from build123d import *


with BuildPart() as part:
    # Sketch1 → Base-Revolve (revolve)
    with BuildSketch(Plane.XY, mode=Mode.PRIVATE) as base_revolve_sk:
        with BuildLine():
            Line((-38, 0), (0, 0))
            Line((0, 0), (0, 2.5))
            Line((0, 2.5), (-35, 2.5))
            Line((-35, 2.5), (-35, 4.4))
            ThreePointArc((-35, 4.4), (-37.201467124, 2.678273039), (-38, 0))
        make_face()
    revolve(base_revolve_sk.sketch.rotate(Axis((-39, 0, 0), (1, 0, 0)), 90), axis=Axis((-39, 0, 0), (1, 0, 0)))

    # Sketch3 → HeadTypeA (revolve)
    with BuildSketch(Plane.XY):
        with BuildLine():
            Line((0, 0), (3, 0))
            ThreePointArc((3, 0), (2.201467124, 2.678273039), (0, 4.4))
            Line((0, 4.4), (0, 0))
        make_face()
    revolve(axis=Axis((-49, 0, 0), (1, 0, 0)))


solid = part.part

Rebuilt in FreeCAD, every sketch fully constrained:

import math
import FreeCAD as App
import Part
import Sketcher
Q = App.Units.Quantity

doc = App.newDocument("Part")
params = doc.addObject("Spreadsheet::Sheet", "Params")
for row, (alias, value) in enumerate([
    ("sketch1_radius", "4.6 mm"),
    ("sketch1_width", "38 mm"),
    ("sketch1_width2", "35 mm"),
    ("sketch1_height", "2.5 mm"),
    ("sketch1_height2", "1.9 mm"),
    ("revolution_angle", "360 deg"),
    ("sketch2_radius", "4.6 mm"),
    ("sketch2_width", "3 mm"),
    ("sketch2_height", "4.4 mm"),
    ("revolution2_angle", "360 deg"),
], start=1):
    params.set(f"A{row}", alias)
    params.set(f"B{row}", "=" + value)
    params.setAlias(f"B{row}", alias)

body = doc.addObject("PartDesign::Body", "Body")

# Sketch on XY plane
sketch1 = body.newObject("Sketcher::SketchObject", "Sketch")
sketch1.AttachmentSupport = (doc.getObject("XY_Plane"), [""])
sketch1.MapMode = "FlatFace"
sketch1.addGeometry(Part.LineSegment(App.Vector(-38, 0, 0), App.Vector(0, 0, 0)), False)
sketch1.addGeometry(Part.LineSegment(App.Vector(0, 0, 0), App.Vector(0, 2.5, 0)), False)
sketch1.addGeometry(Part.LineSegment(App.Vector(0, 2.5, 0), App.Vector(-35, 2.5, 0)), False)
sketch1.addGeometry(Part.LineSegment(App.Vector(-35, 2.5, 0), App.Vector(-35, 4.4, 0)), False)
sketch1.addGeometry(Part.ArcOfCircle(Part.Circle(App.Vector(-33.400821, 0.086924, 0), App.Vector(0, 0, 1), 4.6), math.radians(110.343495), math.radians(181.082751)), False)
sketch1.addConstraint(Sketcher.Constraint("Coincident", 0, 2, 1, 1))
sketch1.addConstraint(Sketcher.Constraint("Coincident", 1, 2, 2, 1))
sketch1.addConstraint(Sketcher.Constraint("Coincident", 2, 2, 3, 1))
sketch1.addConstraint(Sketcher.Constraint("Coincident", 3, 2, 4, 1))
sketch1.addConstraint(Sketcher.Constraint("Coincident", 4, 2, 0, 1))
sketch1.addConstraint(Sketcher.Constraint("Horizontal", 0))
sketch1.addConstraint(Sketcher.Constraint("Vertical", 1))
sketch1.addConstraint(Sketcher.Constraint("Horizontal", 2))
sketch1.addConstraint(Sketcher.Constraint("Vertical", 3))
sketch1.addConstraint(Sketcher.Constraint("Coincident", 0, 2, -1, 1))
sketch1.addConstraint(Sketcher.Constraint("Radius", 4, Q("4.6 mm")))
sketch1.addConstraint(Sketcher.Constraint("DistanceX", 0, 1, 0, 2, Q("38 mm")))
sketch1.addConstraint(Sketcher.Constraint("DistanceX", 2, 2, 2, 1, Q("35 mm")))
sketch1.addConstraint(Sketcher.Constraint("DistanceY", 1, 1, 1, 2, Q("2.5 mm")))
sketch1.addConstraint(Sketcher.Constraint("DistanceY", 3, 1, 3, 2, Q("1.9 mm")))
sketch1.setExpression("Constraints[10]", "Params.sketch1_radius")
sketch1.setExpression("Constraints[11]", "Params.sketch1_width")
sketch1.setExpression("Constraints[12]", "Params.sketch1_width2")
sketch1.setExpression("Constraints[13]", "Params.sketch1_height")
sketch1.setExpression("Constraints[14]", "Params.sketch1_height2")
revolution = body.newObject("PartDesign::Revolution", "Revolution")
revolution.Profile = sketch1
revolution.ReferenceAxis = (sketch1, ["H_Axis"])
revolution.setExpression("Angle", "Params.revolution_angle")

# Sketch on XY plane
sketch2 = body.newObject("Sketcher::SketchObject", "Sketch001")
sketch2.AttachmentSupport = (doc.getObject("XY_Plane"), [""])
sketch2.MapMode = "FlatFace"
sketch2.addGeometry(Part.LineSegment(App.Vector(0, 0, 0), App.Vector(3, 0, 0)), False)
sketch2.addGeometry(Part.ArcOfCircle(Part.Circle(App.Vector(-1.599179, 0.086924, 0), App.Vector(0, 0, 1), 4.6), math.radians(-1.082751), math.radians(69.656505)), False)
sketch2.addGeometry(Part.LineSegment(App.Vector(0, 4.4, 0), App.Vector(0, 0, 0)), False)
sketch2.addConstraint(Sketcher.Constraint("Coincident", 0, 2, 1, 1))
sketch2.addConstraint(Sketcher.Constraint("Coincident", 1, 2, 2, 1))
sketch2.addConstraint(Sketcher.Constraint("Coincident", 2, 2, 0, 1))
sketch2.addConstraint(Sketcher.Constraint("Horizontal", 0))
sketch2.addConstraint(Sketcher.Constraint("Vertical", 2))
sketch2.addConstraint(Sketcher.Constraint("Coincident", 2, 2, -1, 1))
sketch2.addConstraint(Sketcher.Constraint("Radius", 1, Q("4.6 mm")))
sketch2.addConstraint(Sketcher.Constraint("DistanceX", 0, 1, 0, 2, Q("3 mm")))
sketch2.addConstraint(Sketcher.Constraint("DistanceY", 2, 2, 2, 1, Q("4.4 mm")))
sketch2.setExpression("Constraints[6]", "Params.sketch2_radius")
sketch2.setExpression("Constraints[7]", "Params.sketch2_width")
sketch2.setExpression("Constraints[8]", "Params.sketch2_height")
revolution2 = body.newObject("PartDesign::Revolution", "Revolution001")
revolution2.Profile = sketch2
revolution2.ReferenceAxis = (sketch2, ["H_Axis"])
revolution2.setExpression("Angle", "Params.revolution2_angle")

doc.recompute()
